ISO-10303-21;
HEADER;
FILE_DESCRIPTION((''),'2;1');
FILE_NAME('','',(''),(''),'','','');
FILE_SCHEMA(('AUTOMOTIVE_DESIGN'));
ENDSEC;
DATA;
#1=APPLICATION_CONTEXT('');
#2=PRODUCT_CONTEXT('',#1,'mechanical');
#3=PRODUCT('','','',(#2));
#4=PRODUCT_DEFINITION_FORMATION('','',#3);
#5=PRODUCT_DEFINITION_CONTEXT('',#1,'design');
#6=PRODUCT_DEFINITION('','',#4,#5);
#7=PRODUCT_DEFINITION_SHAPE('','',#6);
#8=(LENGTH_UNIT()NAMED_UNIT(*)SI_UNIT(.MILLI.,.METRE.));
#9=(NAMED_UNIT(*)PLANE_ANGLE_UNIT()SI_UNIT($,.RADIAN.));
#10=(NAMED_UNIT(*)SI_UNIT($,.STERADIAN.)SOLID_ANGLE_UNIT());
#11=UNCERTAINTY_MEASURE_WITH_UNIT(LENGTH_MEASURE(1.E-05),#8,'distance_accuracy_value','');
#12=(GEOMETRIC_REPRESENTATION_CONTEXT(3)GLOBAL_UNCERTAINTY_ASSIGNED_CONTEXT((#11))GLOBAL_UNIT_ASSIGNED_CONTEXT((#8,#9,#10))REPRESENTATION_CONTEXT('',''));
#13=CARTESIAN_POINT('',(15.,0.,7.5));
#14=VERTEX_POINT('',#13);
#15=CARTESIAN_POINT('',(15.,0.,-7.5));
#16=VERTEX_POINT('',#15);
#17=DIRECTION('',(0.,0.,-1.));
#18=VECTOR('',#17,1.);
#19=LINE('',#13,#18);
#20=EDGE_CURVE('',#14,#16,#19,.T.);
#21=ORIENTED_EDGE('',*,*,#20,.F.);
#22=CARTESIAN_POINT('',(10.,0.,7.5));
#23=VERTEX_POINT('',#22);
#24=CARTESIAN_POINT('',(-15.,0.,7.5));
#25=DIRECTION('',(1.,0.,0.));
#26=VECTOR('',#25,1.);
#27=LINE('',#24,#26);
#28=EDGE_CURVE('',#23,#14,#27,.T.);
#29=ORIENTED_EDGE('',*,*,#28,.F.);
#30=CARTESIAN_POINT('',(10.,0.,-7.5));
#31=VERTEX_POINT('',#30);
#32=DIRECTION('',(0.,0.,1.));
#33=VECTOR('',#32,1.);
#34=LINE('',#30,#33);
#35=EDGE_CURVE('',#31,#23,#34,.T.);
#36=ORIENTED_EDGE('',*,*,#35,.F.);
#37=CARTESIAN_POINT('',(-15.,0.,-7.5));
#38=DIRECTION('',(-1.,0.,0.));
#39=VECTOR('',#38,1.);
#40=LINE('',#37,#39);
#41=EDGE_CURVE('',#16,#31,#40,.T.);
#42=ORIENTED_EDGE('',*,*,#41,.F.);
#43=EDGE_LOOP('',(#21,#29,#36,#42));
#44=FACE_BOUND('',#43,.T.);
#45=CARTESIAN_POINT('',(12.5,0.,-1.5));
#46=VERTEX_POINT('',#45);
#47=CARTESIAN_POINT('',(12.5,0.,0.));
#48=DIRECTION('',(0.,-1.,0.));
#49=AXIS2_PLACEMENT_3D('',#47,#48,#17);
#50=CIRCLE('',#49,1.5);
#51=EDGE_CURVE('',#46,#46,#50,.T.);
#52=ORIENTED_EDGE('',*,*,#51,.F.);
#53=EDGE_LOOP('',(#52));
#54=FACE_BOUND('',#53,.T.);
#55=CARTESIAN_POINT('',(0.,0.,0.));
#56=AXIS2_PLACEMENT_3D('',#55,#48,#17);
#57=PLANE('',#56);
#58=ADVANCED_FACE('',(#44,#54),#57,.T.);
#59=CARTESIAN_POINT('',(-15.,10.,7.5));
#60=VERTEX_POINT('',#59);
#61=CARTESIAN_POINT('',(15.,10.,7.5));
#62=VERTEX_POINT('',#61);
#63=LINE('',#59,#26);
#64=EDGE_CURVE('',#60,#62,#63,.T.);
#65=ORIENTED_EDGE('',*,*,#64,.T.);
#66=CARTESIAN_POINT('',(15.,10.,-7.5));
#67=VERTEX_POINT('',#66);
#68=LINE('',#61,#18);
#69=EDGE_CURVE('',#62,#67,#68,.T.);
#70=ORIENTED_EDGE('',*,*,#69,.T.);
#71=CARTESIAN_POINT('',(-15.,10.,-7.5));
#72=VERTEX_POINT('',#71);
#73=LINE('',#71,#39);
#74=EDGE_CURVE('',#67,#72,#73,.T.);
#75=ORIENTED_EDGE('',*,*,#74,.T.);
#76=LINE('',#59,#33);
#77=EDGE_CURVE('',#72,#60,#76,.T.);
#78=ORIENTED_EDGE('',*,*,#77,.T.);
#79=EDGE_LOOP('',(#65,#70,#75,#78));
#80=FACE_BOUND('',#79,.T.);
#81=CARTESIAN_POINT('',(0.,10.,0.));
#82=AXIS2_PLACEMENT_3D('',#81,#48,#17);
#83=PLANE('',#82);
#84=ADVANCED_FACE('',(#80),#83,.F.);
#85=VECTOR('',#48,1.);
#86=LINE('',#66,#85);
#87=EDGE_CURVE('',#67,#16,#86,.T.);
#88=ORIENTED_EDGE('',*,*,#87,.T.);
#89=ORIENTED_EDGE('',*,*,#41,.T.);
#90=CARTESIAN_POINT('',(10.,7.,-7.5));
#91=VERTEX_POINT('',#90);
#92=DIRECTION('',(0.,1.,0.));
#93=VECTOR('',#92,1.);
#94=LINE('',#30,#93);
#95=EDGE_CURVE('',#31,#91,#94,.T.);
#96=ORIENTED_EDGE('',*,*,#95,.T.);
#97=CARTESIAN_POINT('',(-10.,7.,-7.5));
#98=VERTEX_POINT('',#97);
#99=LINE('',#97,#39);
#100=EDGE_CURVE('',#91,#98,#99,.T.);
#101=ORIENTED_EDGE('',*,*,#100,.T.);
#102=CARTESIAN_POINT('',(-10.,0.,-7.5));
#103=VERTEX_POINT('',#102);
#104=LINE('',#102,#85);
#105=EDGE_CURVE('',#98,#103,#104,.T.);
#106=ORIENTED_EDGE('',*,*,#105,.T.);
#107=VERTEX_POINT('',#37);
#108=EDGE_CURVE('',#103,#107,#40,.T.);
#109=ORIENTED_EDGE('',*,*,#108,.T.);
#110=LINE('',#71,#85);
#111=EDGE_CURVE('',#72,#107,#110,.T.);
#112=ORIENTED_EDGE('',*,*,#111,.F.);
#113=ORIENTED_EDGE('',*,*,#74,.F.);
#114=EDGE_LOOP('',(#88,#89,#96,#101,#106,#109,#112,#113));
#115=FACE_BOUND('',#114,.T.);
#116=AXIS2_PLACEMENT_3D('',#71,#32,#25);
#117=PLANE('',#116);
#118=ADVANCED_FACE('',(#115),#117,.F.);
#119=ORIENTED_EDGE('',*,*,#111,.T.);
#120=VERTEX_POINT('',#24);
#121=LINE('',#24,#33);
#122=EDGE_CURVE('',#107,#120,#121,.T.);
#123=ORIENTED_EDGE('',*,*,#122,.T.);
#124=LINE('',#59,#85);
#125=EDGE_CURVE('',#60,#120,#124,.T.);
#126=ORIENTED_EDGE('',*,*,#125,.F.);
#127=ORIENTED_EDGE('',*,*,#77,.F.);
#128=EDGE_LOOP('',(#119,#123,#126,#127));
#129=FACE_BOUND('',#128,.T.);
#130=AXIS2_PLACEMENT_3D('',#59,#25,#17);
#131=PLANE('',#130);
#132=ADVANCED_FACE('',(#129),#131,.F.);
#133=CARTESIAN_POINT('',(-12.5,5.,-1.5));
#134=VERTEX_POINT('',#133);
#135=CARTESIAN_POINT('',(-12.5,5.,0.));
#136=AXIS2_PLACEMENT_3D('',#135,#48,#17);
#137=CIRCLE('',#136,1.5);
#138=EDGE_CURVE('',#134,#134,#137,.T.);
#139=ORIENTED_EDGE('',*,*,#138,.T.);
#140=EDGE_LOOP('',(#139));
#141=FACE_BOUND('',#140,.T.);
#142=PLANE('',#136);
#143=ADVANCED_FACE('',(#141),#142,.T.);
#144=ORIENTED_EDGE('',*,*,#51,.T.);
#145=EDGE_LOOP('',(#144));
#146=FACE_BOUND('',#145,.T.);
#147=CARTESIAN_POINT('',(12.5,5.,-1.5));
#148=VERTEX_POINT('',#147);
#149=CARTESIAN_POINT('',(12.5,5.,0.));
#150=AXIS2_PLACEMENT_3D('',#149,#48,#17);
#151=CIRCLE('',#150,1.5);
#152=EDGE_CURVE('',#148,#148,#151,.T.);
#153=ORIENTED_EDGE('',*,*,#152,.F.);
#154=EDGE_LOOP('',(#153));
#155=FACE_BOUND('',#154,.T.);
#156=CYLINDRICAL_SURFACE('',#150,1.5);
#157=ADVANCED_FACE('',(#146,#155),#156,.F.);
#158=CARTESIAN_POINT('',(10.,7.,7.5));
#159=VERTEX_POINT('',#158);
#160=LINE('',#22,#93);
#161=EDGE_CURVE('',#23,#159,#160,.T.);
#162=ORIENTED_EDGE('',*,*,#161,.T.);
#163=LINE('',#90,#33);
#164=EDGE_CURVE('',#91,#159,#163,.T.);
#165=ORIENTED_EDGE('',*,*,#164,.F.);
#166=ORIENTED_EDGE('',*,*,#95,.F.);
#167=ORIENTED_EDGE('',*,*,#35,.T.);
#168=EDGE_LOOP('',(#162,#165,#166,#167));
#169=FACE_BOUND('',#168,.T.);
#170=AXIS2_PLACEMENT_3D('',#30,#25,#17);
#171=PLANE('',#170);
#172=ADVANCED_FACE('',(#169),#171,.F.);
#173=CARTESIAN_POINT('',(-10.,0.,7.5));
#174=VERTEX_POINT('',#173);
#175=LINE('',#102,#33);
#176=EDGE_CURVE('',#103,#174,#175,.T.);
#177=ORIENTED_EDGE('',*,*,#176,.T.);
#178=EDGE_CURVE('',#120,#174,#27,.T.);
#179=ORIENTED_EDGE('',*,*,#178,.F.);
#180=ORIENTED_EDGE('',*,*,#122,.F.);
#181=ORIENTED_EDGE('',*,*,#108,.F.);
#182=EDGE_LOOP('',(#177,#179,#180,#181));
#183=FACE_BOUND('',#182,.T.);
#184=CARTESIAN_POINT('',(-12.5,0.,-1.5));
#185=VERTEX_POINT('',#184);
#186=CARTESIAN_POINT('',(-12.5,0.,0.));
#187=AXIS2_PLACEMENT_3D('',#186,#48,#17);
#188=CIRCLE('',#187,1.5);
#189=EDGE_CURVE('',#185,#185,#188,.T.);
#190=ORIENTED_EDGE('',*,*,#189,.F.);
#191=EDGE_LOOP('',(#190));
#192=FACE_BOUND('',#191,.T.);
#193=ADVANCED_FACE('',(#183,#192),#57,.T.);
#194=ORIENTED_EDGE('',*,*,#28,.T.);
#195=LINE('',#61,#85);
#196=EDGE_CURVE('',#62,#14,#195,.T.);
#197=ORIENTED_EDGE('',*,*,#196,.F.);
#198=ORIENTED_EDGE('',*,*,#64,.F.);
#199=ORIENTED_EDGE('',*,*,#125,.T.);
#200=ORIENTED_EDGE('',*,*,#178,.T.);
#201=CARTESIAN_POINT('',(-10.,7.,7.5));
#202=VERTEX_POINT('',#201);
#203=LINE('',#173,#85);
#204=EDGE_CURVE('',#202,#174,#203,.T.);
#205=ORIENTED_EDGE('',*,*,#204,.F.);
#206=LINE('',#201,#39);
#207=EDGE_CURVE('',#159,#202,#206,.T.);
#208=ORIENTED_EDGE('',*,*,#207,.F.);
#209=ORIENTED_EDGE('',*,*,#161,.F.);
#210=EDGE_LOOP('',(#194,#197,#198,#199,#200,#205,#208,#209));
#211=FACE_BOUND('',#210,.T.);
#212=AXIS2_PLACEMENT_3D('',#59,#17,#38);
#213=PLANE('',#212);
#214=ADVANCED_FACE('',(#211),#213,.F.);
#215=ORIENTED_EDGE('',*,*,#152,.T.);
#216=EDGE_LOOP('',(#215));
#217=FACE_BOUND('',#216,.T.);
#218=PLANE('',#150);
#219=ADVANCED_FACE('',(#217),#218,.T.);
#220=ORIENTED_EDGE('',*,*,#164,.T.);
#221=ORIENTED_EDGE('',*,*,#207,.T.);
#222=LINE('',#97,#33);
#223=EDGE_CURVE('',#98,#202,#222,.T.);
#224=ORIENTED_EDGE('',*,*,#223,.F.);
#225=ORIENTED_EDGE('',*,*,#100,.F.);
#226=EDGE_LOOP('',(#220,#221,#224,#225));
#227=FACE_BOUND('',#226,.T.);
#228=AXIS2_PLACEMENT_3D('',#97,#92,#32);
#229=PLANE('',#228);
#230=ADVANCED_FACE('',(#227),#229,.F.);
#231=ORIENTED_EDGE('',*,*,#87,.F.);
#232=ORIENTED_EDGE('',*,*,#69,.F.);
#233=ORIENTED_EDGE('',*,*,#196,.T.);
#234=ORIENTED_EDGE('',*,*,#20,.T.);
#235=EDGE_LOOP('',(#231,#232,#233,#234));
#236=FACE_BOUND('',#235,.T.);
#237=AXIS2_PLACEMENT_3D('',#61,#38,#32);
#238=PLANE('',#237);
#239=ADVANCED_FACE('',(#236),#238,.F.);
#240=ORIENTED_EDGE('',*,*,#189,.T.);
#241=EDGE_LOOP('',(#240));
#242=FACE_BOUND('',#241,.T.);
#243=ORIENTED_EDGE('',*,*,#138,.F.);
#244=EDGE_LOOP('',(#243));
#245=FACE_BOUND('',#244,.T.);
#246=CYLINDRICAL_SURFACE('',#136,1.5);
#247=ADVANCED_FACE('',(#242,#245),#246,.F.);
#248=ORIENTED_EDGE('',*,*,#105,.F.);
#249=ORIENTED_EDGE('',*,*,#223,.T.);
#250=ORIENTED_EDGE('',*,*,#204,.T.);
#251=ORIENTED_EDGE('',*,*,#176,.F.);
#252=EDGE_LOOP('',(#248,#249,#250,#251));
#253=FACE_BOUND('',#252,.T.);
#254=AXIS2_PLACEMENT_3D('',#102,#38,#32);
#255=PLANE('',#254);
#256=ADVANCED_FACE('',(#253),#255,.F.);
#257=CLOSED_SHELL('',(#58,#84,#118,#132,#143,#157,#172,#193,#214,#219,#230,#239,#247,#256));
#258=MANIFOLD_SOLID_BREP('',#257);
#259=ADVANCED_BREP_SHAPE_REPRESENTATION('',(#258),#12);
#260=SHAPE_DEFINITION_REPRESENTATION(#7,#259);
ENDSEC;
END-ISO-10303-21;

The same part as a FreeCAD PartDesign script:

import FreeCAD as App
import Part
import Sketcher

V = App.Vector
Q = App.Units.Quantity

doc = App.newDocument("Part")
params = doc.addObject("Spreadsheet::Sheet", "Params")
for row, (alias, value) in enumerate([
    ("sketch1_width", "30 mm"),
    ("sketch1_height", "15 mm"),
    ("pad1_length", "10 mm"),
    ("sketch2_width", "20 mm"),
    ("sketch2_height", "7 mm"),
    ("sketch3_diameter", "3 mm"),
    ("pocket2_length", "5 mm"),
], start=1):
    params.set(f"A{row}", alias)
    params.set(f"B{row}", "=" + value)
    params.setAlias(f"B{row}", alias)

body = doc.addObject("PartDesign::Body", "Body")

# Sketch on XZ plane
sketch1 = body.newObject("Sketcher::SketchObject", "Sketch")
sketch1.AttachmentSupport = (doc.getObject("XZ_Plane"), [""])
sketch1.MapMode = "FlatFace"
sketch1.addGeometry([
    Part.LineSegment(V(-15, -8, 0), V(-15, 8, 0)),
    Part.LineSegment(V(-15, 8, 0), V(15, 8, 0)),
    Part.LineSegment(V(15, 8, 0), V(15, -8, 0)),
    Part.LineSegment(V(15, -8, 0), V(-15, -8, 0)),
], False)
sketch1.addConstraint([
    Sketcher.Constraint("Coincident", 0, 2, 1, 1),
    Sketcher.Constraint("Coincident", 1, 2, 2, 1),
    Sketcher.Constraint("Coincident", 2, 2, 3, 1),
    Sketcher.Constraint("Coincident", 3, 2, 0, 1),
    Sketcher.Constraint("Vertical", 0),
    Sketcher.Constraint("Horizontal", 1),
    Sketcher.Constraint("Vertical", 2),
    Sketcher.Constraint("Horizontal", 3),
    Sketcher.Constraint("Symmetric", 0, 2, 2, 2, -1, 1),
    Sketcher.Constraint("DistanceX", 1, 1, 1, 2, Q("30 mm")),
    Sketcher.Constraint("DistanceY", 0, 1, 0, 2, Q("15 mm")),
])
sketch1.setExpression("Constraints[9]", "Params.sketch1_width")
sketch1.setExpression("Constraints[10]", "Params.sketch1_height")
pad1 = body.newObject("PartDesign::Pad", "Pad")
pad1.Profile = sketch1
pad1.setExpression("Length", "Params.pad1_length")
pad1.Reversed = True

# Sketch on XY plane
sketch2 = body.newObject("Sketcher::SketchObject", "Sketch001")
sketch2.AttachmentSupport = (doc.getObject("XY_Plane"), [""])
sketch2.MapMode = "FlatFace"
sketch2.AttachmentOffset = App.Placement(V(0, 0, 7.5), App.Rotation())
sketch2.addGeometry([
    Part.LineSegment(V(-10, 7, 0), V(-10, 0, 0)),
    Part.LineSegment(V(-10, 0, 0), V(10, 0, 0)),
    Part.LineSegment(V(10, 0, 0), V(10, 7, 0)),
    Part.LineSegment(V(10, 7, 0), V(-10, 7, 0)),
], False)
sketch2.addConstraint([
    Sketcher.Constraint("Coincident", 0, 2, 1, 1),
    Sketcher.Constraint("Coincident", 1, 2, 2, 1),
    Sketcher.Constraint("Coincident", 2, 2, 3, 1),
    Sketcher.Constraint("Coincident", 3, 2, 0, 1),
    Sketcher.Constraint("Vertical", 0),
    Sketcher.Constraint("Horizontal", 1),
    Sketcher.Constraint("Vertical", 2),
    Sketcher.Constraint("Horizontal", 3),
    Sketcher.Constraint("Symmetric", 0, 2, 1, 2, -1, 1),
    Sketcher.Constraint("DistanceX", 1, 1, 1, 2, Q("20 mm")),
    Sketcher.Constraint("DistanceY", 0, 2, 0, 1, Q("7 mm")),
])
sketch2.setExpression("Constraints[9]", "Params.sketch2_width")
sketch2.setExpression("Constraints[10]", "Params.sketch2_height")
pocket1 = body.newObject("PartDesign::Pocket", "Pocket")
pocket1.Profile = sketch2
pocket1.Type = "ThroughAll"

# Sketch on XZ plane
sketch3 = body.newObject("Sketcher::SketchObject", "Sketch002")
sketch3.AttachmentSupport = (doc.getObject("XZ_Plane"), [""])
sketch3.MapMode = "FlatFace"
sketch3.addGeometry([
    Part.Circle(V(12.5, 0, 0), V(0, 0, 1), 1.5),
    Part.Circle(V(-12.5, 0, 0), V(0, 0, 1), 1.5),
], False)
sketch3.addConstraint([
    Sketcher.Constraint("Equal", 0, 1),
    Sketcher.Constraint("Symmetric", 0, 3, 1, 3, -1, 1),
    Sketcher.Constraint("PointOnObject", 0, 3, -1),
    Sketcher.Constraint("Diameter", 0, Q("3 mm")),
    Sketcher.Constraint("DistanceX", 1, 3, 0, 3, Q("25 mm")),
])
sketch3.setExpression("Constraints[3]", "Params.sketch3_diameter")
pocket2 = body.newObject("PartDesign::Pocket", "Pocket001")
pocket2.Profile = sketch3
pocket2.setExpression("Length", "Params.pocket2_length")

doc.recompute()
